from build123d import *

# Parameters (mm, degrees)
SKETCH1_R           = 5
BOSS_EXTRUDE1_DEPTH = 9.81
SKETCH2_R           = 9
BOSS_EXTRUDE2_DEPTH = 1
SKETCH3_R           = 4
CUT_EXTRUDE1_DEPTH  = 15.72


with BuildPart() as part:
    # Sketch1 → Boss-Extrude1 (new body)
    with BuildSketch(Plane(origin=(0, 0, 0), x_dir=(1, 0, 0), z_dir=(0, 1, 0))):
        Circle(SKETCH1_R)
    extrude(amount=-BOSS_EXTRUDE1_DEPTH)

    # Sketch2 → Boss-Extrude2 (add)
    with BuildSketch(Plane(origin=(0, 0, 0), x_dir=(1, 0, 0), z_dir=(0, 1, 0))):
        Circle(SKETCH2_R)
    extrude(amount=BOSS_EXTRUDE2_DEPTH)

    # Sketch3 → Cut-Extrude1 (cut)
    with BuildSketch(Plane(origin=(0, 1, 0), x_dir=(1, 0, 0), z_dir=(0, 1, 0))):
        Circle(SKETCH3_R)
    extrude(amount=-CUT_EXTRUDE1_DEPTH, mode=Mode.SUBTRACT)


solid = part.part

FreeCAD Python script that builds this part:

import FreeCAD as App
import Part
import Sketcher

V = App.Vector

doc = App.newDocument("Part")
body = doc.addObject("PartDesign::Body", "Body")

sketch1 = body.newObject("Sketcher::SketchObject", "Sketch")
sketch1.AttachmentSupport = (doc.getObject("XZ_Plane"), [""])
sketch1.MapMode = "FlatFace"
sketch1.addGeometry(Part.Circle(V(0, 0, 0), V(0, 0, 1), 5), False)
sketch1.addConstraint(Sketcher.Constraint("Coincident", 0, 3, -1, 1))
sketch1.addConstraint(Sketcher.Constraint("Diameter", 0, 10.0))
pad1 = body.newObject("PartDesign::Pad", "Pad")
pad1.Profile = sketch1
pad1.Length = 9.81

sketch2 = body.newObject("Sketcher::SketchObject", "Sketch001")
sketch2.AttachmentSupport = (doc.getObject("XZ_Plane"), [""])
sketch2.MapMode = "FlatFace"
sketch2.addGeometry(Part.Circle(V(0, 0, 0), V(0, 0, 1), 9), False)
sketch2.addConstraint(Sketcher.Constraint("Coincident", 0, 3, -1, 1))
sketch2.addConstraint(Sketcher.Constraint("Diameter", 0, 18.0))
pad2 = body.newObject("PartDesign::Pad", "Pad001")
pad2.Profile = sketch2
pad2.Length = 1
pad2.Reversed = True

sketch3 = body.newObject("Sketcher::SketchObject", "Sketch002")
sketch3.AttachmentSupport = (doc.getObject("XZ_Plane"), [""])
sketch3.MapMode = "FlatFace"
sketch3.AttachmentOffset = App.Placement(V(0, 0, -1), App.Rotation())
sketch3.addGeometry(Part.Circle(V(0, 0, 0), V(0, 0, 1), 4), False)
sketch3.addConstraint(Sketcher.Constraint("Coincident", 0, 3, -1, 1))
sketch3.addConstraint(Sketcher.Constraint("Diameter", 0, 8.0))
pocket1 = body.newObject("PartDesign::Pocket", "Pocket")
pocket1.Profile = sketch3
pocket1.Length = 15.72
pocket1.Reversed = True

doc.recompute()
